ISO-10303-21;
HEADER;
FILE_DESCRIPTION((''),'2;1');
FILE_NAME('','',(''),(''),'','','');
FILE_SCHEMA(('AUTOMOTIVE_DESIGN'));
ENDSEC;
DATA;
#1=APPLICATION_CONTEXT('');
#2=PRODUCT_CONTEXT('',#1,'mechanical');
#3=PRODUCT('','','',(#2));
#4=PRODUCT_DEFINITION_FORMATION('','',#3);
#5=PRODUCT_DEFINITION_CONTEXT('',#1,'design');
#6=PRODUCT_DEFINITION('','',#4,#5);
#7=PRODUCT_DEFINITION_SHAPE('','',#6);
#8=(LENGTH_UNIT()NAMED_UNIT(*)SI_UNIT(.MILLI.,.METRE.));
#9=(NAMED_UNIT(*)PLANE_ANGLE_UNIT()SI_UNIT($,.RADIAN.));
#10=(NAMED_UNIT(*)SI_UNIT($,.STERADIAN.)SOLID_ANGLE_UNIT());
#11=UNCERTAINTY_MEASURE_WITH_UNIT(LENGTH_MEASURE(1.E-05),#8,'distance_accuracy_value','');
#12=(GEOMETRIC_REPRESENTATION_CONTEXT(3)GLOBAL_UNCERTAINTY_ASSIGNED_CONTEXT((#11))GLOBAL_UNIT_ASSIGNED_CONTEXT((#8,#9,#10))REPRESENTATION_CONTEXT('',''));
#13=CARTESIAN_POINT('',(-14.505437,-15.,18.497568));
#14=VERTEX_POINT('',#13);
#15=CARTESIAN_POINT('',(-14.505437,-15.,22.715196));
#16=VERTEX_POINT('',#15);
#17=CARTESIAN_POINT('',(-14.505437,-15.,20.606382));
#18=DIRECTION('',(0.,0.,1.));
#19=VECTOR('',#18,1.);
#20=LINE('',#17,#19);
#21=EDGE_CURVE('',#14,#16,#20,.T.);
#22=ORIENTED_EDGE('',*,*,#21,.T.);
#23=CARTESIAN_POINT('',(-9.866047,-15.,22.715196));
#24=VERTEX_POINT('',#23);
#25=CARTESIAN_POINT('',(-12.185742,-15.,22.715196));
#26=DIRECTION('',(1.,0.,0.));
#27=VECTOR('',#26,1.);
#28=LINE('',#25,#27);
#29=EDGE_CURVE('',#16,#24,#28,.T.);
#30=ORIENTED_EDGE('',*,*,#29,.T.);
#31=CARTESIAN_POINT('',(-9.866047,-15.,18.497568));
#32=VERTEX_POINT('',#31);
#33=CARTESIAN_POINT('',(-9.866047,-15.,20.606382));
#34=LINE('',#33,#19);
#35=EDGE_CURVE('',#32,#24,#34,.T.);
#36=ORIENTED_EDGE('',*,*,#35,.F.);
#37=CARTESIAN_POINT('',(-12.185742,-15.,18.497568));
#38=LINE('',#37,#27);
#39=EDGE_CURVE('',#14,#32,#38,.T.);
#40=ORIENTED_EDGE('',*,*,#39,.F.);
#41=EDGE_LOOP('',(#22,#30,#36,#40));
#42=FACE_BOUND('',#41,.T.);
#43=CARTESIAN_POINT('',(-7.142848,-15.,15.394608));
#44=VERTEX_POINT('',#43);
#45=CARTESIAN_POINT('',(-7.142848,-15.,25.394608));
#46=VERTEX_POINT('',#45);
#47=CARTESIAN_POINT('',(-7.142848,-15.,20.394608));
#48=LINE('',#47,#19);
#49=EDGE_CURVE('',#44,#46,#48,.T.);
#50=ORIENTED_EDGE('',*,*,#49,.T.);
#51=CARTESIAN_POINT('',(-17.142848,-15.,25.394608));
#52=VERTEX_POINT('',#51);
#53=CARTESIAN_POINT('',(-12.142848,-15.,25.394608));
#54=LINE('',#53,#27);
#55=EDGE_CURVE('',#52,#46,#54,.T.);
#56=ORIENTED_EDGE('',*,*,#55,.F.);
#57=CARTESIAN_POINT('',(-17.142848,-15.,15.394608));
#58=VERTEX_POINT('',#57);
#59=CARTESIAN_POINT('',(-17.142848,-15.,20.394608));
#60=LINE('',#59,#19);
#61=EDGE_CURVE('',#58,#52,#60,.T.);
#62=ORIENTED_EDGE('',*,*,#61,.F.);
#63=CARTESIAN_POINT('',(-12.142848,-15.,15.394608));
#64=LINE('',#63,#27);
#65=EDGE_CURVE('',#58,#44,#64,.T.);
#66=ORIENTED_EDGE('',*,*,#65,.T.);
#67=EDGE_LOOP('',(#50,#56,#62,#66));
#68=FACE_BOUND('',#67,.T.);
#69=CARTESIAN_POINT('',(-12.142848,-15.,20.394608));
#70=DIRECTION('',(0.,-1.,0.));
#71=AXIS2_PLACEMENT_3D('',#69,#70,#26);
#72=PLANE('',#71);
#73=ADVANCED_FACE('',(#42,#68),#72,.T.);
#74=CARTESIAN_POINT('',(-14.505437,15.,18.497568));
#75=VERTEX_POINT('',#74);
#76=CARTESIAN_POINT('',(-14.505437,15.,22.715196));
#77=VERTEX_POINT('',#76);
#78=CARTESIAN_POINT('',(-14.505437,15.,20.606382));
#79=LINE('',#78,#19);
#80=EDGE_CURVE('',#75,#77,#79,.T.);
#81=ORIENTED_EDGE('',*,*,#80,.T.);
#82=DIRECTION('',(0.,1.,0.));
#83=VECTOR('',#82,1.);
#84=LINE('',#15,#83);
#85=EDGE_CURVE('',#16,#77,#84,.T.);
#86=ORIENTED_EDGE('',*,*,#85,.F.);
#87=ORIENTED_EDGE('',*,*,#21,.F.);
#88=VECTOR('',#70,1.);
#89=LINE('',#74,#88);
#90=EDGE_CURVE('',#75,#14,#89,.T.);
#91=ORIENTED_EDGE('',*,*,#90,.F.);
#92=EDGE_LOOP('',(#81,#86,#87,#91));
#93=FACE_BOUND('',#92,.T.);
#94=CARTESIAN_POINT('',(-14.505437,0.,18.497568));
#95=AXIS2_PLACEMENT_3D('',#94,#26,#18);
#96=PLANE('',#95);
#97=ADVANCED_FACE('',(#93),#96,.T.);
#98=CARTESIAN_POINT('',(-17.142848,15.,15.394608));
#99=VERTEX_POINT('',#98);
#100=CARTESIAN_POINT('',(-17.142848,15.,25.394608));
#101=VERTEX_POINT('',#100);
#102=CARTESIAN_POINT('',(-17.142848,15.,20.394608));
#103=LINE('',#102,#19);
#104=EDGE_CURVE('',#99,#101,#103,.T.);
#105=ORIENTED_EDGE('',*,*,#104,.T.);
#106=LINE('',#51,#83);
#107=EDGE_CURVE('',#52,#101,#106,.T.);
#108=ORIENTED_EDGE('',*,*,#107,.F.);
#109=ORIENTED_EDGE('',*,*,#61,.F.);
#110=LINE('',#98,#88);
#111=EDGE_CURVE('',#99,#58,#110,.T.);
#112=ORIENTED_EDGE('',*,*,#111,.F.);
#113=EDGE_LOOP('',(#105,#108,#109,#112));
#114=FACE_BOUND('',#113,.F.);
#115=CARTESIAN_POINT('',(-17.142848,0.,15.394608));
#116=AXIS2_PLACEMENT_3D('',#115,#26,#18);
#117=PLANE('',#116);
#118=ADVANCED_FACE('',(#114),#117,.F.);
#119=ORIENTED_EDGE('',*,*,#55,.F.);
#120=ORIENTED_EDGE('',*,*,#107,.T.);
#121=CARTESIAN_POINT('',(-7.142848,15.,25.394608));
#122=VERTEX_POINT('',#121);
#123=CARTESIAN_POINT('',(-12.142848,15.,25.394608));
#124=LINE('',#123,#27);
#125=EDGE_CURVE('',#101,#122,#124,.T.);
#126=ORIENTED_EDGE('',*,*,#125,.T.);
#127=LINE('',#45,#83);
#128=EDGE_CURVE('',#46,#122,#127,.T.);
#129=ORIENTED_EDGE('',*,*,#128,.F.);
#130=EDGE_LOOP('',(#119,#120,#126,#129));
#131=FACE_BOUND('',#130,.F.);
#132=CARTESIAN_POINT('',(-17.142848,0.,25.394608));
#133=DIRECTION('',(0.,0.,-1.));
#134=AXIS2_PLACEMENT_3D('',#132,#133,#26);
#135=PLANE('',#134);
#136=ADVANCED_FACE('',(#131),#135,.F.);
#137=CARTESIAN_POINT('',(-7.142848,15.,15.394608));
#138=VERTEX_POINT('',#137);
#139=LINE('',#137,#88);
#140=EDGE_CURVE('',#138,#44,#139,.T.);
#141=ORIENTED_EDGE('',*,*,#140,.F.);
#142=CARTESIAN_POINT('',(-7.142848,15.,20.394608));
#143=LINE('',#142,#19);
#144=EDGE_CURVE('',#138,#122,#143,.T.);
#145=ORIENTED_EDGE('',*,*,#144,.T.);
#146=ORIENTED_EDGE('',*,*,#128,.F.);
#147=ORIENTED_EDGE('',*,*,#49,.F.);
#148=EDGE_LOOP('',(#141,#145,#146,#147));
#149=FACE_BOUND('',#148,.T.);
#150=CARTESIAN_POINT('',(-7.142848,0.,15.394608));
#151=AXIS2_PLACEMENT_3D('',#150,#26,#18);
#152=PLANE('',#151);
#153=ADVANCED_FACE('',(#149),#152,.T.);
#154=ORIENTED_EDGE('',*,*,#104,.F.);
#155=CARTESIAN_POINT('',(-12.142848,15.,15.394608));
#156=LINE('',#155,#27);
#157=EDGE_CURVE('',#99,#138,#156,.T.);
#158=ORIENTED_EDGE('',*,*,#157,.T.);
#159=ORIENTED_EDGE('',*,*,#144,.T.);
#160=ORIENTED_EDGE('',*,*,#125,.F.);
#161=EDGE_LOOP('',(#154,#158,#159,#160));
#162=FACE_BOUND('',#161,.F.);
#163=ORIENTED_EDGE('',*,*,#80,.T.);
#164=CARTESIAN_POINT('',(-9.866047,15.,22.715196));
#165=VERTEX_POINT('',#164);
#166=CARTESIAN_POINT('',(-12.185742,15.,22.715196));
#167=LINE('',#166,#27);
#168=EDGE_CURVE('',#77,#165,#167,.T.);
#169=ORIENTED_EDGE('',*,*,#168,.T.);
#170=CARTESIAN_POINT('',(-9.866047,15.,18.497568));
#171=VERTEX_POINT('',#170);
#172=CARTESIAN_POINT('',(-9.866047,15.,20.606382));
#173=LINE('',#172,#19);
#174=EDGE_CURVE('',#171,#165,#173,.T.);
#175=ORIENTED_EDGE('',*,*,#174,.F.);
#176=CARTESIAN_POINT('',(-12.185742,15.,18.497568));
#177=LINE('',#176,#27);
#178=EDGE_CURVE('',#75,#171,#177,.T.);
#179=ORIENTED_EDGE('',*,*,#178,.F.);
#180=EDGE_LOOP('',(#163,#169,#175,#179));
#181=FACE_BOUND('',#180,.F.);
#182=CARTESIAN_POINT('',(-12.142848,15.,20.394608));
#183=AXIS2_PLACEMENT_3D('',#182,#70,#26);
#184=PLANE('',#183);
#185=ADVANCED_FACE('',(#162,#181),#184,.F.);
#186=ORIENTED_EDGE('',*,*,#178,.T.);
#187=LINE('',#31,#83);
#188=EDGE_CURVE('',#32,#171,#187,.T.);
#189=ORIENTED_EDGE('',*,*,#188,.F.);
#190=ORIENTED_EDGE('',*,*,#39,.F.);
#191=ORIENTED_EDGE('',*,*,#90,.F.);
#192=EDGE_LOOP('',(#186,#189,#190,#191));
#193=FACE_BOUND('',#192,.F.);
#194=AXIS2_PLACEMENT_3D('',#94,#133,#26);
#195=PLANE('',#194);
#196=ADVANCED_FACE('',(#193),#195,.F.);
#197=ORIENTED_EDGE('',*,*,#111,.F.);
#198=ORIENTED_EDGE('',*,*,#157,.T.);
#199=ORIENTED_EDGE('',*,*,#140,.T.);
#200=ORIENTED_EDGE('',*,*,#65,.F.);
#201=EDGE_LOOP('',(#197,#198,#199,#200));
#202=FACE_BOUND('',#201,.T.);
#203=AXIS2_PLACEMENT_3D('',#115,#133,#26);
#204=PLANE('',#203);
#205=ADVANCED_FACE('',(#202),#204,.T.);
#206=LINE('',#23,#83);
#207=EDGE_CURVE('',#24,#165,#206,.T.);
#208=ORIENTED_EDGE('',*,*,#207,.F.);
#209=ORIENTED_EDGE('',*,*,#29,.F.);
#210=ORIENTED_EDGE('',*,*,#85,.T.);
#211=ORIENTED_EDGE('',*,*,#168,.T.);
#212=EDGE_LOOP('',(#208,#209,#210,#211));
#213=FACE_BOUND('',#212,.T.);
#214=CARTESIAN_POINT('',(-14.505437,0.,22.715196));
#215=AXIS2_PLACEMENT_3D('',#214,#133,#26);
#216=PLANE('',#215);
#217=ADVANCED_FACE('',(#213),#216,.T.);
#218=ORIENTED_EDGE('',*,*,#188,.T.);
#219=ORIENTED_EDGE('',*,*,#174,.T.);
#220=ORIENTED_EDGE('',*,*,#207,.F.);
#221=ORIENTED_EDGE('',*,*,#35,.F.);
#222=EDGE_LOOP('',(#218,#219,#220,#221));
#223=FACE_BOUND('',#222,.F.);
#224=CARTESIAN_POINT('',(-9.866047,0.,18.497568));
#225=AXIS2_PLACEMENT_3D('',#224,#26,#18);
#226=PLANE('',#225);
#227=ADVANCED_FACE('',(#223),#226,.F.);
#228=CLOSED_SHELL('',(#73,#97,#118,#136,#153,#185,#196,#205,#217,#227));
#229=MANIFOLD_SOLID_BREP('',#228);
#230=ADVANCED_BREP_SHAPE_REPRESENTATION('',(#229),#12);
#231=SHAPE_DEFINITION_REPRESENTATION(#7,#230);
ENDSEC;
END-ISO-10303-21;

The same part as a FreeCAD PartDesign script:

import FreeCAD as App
import Part
import Sketcher

V = App.Vector


def add_polygon(sketch, points):
    """Adds a closed chain of lines whose ends are joined by coincident constraints."""
    first, n = sketch.GeometryCount, len(points)
    for a, b in zip(points, points[1:] + points[:1]):
        sketch.addGeometry(Part.LineSegment(App.Vector(*a, 0), App.Vector(*b, 0)), False)
    for i in range(n):
        sketch.addConstraint(Sketcher.Constraint("Coincident", first + i, 2, first + (i + 1) % n, 1))

doc = App.newDocument("Part")
params = doc.addObject("Spreadsheet::Sheet", "Params")
for row, (alias, value) in enumerate([
    ("sketch1_width", "10 mm"),
    ("pad1_length", "30 mm"),
], start=1):
    params.set(f"A{row}", alias)
    params.set(f"B{row}", "=" + value)
    params.setAlias(f"B{row}", alias)

body = doc.addObject("PartDesign::Body", "Body")

# Sketch on XZ plane
sketch1 = body.newObject("Sketcher::SketchObject", "Sketch")
sketch1.AttachmentSupport = (doc.getObject("XZ_Plane"), [""])
sketch1.MapMode = "FlatFace"
add_polygon(sketch1, [(-17.1, 25.4), (-17.1, 15.4), (-7.1, 15.4), (-7.1, 25.4)])  # lines 0-3
add_polygon(sketch1, [(-9.9, 18.5), (-14.5, 18.5), (-14.5, 22.7), (-9.9, 22.7)])  # lines 4-7
sketch1.addConstraint(Sketcher.Constraint("Vertical", 0))
sketch1.addConstraint(Sketcher.Constraint("Horizontal", 1))
sketch1.addConstraint(Sketcher.Constraint("Vertical", 2))
sketch1.addConstraint(Sketcher.Constraint("Horizontal", 3))
sketch1.addConstraint(Sketcher.Constraint("Horizontal", 4))
sketch1.addConstraint(Sketcher.Constraint("Vertical", 5))
sketch1.addConstraint(Sketcher.Constraint("Horizontal", 6))
sketch1.addConstraint(Sketcher.Constraint("Vertical", 7))
sketch1.addConstraint(Sketcher.Constraint("Equal", 3, 0))
sketch1.addConstraint(Sketcher.Constraint("DistanceX", 1, 1, 1, 2, 10.0))
sketch1.addConstraint(Sketcher.Constraint("DistanceX", 4, 2, 4, 1, 4.63939))
sketch1.addConstraint(Sketcher.Constraint("DistanceX", 6, 2, 2, 2, 2.723199))
sketch1.addConstraint(Sketcher.Constraint("DistanceY", 5, 1, 5, 2, 4.217628))
sketch1.addConstraint(Sketcher.Constraint("DistanceX", 0, 2, -1, 1, 17.142848))
sketch1.addConstraint(Sketcher.Constraint("DistanceY", -1, 1, 2, 2, 25.394608))
sketch1.addConstraint(Sketcher.Constraint("DistanceY", -1, 1, 4, 2, 18.497568))
sketch1.setExpression("Constraints[17]", "Params.sketch1_width")
pad1 = body.newObject("PartDesign::Pad", "Pad")
pad1.Profile = sketch1
pad1.setExpression("Length", "Params.pad1_length")
pad1.Midplane = True

doc.recompute()
